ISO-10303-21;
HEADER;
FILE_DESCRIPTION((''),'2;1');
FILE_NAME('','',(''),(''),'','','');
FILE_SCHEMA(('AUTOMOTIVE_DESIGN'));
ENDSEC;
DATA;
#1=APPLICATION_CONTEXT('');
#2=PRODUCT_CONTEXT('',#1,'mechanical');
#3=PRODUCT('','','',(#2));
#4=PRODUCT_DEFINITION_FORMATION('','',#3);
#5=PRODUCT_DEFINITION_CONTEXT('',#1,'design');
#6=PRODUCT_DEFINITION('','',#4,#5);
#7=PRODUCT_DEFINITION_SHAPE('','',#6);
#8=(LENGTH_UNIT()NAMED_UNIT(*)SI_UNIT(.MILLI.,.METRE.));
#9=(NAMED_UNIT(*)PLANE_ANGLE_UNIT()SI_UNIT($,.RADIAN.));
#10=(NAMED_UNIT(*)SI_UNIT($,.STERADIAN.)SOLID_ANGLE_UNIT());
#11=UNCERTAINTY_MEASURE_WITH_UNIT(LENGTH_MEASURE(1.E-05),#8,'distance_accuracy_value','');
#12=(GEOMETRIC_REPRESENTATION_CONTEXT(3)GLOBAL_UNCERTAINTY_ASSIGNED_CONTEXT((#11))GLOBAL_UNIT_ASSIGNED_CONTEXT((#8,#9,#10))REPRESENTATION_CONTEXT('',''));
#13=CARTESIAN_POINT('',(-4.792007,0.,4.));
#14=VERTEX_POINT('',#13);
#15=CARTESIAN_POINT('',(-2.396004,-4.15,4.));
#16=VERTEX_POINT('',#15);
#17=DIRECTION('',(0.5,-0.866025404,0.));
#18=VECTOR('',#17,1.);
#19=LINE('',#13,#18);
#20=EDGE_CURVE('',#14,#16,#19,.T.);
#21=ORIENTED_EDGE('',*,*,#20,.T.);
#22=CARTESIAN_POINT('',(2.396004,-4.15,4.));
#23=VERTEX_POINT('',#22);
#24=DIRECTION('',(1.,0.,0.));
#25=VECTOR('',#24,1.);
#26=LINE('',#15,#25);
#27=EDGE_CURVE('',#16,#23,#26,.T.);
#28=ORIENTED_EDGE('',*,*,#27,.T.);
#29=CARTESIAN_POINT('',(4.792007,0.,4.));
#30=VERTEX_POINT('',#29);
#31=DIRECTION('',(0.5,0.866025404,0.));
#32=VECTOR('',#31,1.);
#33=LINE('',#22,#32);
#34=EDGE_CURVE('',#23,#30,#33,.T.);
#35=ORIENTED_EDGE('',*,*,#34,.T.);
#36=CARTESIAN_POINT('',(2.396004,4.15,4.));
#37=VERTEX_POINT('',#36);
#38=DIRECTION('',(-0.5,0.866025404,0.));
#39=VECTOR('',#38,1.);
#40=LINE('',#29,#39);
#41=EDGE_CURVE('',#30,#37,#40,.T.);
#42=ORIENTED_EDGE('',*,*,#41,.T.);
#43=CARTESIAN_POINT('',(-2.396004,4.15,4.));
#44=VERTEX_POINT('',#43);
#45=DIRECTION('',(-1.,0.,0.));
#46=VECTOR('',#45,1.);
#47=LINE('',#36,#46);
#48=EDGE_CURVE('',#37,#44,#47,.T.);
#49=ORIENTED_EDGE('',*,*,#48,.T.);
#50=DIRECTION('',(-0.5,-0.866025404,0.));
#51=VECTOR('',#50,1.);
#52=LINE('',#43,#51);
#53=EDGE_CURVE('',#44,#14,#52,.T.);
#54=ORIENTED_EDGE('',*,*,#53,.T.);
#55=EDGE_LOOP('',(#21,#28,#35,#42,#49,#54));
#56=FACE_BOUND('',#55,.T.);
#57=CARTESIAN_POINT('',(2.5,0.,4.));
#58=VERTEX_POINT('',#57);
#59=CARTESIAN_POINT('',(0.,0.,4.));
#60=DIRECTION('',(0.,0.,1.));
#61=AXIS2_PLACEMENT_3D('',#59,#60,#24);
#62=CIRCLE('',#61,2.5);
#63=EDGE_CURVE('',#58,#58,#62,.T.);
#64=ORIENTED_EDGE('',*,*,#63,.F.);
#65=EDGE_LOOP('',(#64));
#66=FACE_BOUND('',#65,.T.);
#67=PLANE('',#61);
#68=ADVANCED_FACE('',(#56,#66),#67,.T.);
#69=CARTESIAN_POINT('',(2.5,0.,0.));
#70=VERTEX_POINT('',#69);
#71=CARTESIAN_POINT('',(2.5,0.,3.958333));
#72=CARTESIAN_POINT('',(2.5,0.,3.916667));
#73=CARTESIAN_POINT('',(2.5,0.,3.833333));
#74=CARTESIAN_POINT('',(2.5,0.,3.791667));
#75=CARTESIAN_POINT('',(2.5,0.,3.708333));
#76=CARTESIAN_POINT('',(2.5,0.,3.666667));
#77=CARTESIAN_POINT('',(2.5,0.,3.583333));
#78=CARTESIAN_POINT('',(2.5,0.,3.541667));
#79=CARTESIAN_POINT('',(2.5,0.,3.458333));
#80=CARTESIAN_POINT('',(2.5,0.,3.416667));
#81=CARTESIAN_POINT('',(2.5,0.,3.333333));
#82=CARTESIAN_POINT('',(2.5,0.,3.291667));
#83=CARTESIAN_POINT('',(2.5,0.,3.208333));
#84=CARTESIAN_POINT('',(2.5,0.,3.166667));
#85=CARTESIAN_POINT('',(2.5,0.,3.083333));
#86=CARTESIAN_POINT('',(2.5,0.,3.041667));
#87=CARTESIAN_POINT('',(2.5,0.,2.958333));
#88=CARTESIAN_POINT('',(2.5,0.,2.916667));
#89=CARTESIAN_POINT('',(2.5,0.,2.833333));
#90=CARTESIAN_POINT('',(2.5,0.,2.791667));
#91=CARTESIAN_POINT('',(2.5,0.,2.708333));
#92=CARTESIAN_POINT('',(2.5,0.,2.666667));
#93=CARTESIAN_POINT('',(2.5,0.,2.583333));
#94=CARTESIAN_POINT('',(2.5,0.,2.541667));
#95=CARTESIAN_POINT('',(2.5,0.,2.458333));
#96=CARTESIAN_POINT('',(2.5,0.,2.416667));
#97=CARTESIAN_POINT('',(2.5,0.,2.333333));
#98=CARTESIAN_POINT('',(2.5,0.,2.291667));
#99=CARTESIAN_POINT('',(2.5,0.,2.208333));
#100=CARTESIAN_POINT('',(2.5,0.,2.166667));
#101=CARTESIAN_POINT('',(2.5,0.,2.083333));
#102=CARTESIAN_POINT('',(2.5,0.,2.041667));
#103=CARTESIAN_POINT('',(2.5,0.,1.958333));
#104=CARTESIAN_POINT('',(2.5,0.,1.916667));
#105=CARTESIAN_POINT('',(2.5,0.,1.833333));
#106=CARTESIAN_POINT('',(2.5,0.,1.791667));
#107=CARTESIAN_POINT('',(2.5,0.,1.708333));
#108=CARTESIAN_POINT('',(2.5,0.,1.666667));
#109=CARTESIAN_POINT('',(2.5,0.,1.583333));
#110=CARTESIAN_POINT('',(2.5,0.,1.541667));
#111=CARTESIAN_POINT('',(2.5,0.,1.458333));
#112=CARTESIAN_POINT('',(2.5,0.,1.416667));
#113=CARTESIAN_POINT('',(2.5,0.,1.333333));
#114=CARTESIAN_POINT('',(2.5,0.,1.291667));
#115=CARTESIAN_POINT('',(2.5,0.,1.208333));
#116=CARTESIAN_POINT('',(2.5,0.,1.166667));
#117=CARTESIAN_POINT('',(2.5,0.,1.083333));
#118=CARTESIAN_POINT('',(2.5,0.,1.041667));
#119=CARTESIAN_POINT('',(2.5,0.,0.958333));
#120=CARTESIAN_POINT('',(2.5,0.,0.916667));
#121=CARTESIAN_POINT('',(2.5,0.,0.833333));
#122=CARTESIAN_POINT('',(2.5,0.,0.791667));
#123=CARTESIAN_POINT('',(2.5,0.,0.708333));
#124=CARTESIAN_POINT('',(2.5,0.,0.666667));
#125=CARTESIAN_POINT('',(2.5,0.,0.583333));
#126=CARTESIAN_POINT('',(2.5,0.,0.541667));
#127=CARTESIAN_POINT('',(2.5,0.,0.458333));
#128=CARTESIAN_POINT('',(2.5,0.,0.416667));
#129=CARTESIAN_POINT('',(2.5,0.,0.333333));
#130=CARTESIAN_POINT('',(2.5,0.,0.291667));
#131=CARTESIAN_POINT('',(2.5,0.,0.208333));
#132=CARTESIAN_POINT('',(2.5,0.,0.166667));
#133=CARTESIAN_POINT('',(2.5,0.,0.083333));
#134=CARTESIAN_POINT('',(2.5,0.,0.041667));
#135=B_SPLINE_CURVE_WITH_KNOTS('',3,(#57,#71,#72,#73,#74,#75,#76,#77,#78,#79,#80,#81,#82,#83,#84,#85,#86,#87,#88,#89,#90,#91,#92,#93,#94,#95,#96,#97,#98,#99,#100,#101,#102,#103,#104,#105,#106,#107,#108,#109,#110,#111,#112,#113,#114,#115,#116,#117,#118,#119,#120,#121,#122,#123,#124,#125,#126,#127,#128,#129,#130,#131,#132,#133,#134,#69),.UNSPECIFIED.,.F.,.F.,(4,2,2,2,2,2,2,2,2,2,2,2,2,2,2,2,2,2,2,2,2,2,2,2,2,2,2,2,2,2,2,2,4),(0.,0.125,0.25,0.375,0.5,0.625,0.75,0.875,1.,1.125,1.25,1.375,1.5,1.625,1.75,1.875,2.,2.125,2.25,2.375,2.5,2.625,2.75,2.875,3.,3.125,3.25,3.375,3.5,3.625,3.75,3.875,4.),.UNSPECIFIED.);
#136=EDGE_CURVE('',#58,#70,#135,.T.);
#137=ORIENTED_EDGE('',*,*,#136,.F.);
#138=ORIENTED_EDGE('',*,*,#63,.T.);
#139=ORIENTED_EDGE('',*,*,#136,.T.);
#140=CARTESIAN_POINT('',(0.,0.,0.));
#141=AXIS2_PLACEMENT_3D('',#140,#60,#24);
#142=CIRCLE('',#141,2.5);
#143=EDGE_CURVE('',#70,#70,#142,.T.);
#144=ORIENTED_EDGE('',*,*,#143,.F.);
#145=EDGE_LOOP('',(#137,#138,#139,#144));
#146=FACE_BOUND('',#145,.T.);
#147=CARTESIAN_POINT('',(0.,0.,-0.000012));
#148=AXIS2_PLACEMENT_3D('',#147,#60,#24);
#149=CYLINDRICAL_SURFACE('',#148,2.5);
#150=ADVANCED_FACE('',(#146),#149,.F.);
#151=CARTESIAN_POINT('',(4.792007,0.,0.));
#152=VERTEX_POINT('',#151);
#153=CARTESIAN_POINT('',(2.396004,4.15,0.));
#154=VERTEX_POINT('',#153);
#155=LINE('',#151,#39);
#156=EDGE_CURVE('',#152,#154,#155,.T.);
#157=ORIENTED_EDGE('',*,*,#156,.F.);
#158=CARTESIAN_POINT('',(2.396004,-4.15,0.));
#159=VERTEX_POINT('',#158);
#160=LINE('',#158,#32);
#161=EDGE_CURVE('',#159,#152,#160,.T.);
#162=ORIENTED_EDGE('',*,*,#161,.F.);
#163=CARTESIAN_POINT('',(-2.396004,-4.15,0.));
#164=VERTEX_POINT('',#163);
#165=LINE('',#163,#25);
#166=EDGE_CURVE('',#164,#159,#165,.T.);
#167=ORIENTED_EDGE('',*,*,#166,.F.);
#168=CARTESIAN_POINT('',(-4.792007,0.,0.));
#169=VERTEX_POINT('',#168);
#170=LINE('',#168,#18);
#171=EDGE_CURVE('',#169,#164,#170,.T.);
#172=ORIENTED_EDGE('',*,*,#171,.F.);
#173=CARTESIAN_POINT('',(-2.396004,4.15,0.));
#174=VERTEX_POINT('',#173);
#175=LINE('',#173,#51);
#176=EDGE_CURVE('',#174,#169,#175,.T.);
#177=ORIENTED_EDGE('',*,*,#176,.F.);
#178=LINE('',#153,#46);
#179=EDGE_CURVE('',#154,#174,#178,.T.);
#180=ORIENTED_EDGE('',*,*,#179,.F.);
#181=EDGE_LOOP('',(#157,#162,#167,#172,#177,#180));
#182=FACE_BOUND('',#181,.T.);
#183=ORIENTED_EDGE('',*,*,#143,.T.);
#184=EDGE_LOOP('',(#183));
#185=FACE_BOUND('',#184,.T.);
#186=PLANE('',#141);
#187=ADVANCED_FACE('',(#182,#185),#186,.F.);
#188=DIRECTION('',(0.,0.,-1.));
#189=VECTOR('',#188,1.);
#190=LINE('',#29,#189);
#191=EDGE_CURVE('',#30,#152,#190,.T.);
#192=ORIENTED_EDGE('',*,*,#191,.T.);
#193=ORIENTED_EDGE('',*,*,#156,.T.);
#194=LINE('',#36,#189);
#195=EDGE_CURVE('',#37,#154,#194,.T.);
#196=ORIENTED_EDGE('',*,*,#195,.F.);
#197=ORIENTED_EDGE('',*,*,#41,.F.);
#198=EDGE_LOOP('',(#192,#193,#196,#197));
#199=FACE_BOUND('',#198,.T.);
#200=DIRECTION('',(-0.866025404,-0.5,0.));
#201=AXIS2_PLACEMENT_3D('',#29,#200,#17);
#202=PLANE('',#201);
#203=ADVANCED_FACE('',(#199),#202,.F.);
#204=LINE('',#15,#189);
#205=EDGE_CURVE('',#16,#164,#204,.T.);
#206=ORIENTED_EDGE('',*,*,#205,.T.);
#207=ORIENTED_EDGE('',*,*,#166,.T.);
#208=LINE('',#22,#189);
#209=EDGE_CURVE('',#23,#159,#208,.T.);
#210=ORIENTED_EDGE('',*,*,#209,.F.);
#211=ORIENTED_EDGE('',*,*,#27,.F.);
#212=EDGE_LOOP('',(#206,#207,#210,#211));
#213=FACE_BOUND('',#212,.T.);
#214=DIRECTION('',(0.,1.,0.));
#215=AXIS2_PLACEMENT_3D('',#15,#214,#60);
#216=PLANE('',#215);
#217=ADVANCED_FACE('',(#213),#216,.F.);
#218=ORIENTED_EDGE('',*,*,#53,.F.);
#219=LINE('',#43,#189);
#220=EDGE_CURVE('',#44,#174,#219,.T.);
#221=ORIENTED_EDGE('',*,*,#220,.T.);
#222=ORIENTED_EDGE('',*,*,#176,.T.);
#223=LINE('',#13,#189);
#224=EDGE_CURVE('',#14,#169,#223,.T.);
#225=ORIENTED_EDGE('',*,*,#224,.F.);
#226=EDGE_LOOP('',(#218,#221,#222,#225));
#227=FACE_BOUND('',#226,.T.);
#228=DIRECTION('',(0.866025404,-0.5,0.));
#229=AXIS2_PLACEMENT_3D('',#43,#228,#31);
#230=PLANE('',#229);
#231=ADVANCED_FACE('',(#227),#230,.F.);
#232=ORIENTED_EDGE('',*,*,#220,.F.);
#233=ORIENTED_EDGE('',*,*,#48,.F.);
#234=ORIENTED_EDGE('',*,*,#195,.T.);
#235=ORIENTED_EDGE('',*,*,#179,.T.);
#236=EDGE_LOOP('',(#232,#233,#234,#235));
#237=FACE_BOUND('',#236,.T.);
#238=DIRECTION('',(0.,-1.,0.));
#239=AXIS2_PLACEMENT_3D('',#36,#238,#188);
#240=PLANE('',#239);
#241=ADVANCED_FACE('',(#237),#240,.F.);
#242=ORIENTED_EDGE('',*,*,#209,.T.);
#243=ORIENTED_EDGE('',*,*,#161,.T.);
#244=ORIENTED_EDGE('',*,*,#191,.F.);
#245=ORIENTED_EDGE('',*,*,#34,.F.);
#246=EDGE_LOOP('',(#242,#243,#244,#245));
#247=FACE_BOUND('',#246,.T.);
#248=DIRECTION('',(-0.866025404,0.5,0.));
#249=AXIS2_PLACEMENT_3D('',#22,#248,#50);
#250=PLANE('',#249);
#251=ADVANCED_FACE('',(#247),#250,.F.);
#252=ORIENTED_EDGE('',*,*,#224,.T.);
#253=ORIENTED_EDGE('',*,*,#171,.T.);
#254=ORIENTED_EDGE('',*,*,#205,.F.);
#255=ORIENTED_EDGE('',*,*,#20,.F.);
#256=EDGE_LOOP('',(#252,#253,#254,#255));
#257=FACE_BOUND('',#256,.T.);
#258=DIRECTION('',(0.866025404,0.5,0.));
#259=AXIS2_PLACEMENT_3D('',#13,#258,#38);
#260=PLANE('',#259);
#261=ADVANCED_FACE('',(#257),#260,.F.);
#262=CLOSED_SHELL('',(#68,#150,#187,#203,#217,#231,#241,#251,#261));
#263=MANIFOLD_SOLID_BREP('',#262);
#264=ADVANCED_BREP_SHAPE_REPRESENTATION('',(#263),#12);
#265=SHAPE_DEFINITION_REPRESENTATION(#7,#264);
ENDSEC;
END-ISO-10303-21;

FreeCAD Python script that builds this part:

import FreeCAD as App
import Part
import Sketcher
Q = App.Units.Quantity


def add_polygon(sketch, points):
    """Adds a closed chain of lines whose ends are joined by coincident constraints."""
    first, n = sketch.GeometryCount, len(points)
    for a, b in zip(points, points[1:] + points[:1]):
        sketch.addGeometry(Part.LineSegment(App.Vector(*a, 0), App.Vector(*b, 0)), False)
    for i in range(n):
        sketch.addConstraint(Sketcher.Constraint("Coincident", first + i, 2, first + (i + 1) % n, 1))

doc = App.newDocument("Part")
body = doc.addObject("PartDesign::Body", "Body")

# Sketch on XY plane
sketch1 = body.newObject("Sketcher::SketchObject", "Sketch")
sketch1.AttachmentSupport = (doc.getObject("XY_Plane"), [""])
sketch1.MapMode = "FlatFace"
add_polygon(sketch1, [(4.8, 0), (2.4, 4.2), (-2.4, 4.2), (-4.8, 0), (-2.4, -4.2), (2.4, -4.2)])  # lines 0-5
sketch1.addConstraint(Sketcher.Constraint("Horizontal", 1))
sketch1.addConstraint(Sketcher.Constraint("Horizontal", 4))
sketch1.addConstraint(Sketcher.Constraint("Symmetric", 0, 2, 3, 2, -1, 1))
sketch1.addConstraint(Sketcher.Constraint("Symmetric", 2, 2, 5, 2, -1, 1))
sketch1.addConstraint(Sketcher.Constraint("PointOnObject", 2, 2, -1))
sketch1.addConstraint(Sketcher.Constraint("Parallel", 2, 5))
sketch1.addConstraint(Sketcher.Constraint("Vertical", 1, 2, 3, 2))
sketch1.addConstraint(Sketcher.Constraint("Angle", 0, Q("120 deg")))
sketch1.addConstraint(Sketcher.Constraint("DistanceY", 3, 2, 1, 2, Q("8.3 mm")))
sketch1.addConstraint(Sketcher.Constraint("DistanceX", 1, 2, 1, 1, Q("4.792007 mm")))
pad1 = body.newObject("PartDesign::Pad", "Pad")
pad1.Profile = sketch1
pad1.Length = 4

# Sketch on XY plane
sketch2 = body.newObject("Sketcher::SketchObject", "Sketch001")
sketch2.AttachmentSupport = (doc.getObject("XY_Plane"), [""])
sketch2.MapMode = "FlatFace"
sketch2.addGeometry(Part.Circle(App.Vector(0, 0, 0), App.Vector(0, 0, 1), 2.5), False)
sketch2.addConstraint(Sketcher.Constraint("Coincident", 0, 3, -1, 1))
sketch2.addConstraint(Sketcher.Constraint("Diameter", 0, Q("5 mm")))
pocket1 = body.newObject("PartDesign::Pocket", "Pocket")
pocket1.Profile = sketch2
pocket1.Type = "ThroughAll"
pocket1.Midplane = True

doc.recompute()
